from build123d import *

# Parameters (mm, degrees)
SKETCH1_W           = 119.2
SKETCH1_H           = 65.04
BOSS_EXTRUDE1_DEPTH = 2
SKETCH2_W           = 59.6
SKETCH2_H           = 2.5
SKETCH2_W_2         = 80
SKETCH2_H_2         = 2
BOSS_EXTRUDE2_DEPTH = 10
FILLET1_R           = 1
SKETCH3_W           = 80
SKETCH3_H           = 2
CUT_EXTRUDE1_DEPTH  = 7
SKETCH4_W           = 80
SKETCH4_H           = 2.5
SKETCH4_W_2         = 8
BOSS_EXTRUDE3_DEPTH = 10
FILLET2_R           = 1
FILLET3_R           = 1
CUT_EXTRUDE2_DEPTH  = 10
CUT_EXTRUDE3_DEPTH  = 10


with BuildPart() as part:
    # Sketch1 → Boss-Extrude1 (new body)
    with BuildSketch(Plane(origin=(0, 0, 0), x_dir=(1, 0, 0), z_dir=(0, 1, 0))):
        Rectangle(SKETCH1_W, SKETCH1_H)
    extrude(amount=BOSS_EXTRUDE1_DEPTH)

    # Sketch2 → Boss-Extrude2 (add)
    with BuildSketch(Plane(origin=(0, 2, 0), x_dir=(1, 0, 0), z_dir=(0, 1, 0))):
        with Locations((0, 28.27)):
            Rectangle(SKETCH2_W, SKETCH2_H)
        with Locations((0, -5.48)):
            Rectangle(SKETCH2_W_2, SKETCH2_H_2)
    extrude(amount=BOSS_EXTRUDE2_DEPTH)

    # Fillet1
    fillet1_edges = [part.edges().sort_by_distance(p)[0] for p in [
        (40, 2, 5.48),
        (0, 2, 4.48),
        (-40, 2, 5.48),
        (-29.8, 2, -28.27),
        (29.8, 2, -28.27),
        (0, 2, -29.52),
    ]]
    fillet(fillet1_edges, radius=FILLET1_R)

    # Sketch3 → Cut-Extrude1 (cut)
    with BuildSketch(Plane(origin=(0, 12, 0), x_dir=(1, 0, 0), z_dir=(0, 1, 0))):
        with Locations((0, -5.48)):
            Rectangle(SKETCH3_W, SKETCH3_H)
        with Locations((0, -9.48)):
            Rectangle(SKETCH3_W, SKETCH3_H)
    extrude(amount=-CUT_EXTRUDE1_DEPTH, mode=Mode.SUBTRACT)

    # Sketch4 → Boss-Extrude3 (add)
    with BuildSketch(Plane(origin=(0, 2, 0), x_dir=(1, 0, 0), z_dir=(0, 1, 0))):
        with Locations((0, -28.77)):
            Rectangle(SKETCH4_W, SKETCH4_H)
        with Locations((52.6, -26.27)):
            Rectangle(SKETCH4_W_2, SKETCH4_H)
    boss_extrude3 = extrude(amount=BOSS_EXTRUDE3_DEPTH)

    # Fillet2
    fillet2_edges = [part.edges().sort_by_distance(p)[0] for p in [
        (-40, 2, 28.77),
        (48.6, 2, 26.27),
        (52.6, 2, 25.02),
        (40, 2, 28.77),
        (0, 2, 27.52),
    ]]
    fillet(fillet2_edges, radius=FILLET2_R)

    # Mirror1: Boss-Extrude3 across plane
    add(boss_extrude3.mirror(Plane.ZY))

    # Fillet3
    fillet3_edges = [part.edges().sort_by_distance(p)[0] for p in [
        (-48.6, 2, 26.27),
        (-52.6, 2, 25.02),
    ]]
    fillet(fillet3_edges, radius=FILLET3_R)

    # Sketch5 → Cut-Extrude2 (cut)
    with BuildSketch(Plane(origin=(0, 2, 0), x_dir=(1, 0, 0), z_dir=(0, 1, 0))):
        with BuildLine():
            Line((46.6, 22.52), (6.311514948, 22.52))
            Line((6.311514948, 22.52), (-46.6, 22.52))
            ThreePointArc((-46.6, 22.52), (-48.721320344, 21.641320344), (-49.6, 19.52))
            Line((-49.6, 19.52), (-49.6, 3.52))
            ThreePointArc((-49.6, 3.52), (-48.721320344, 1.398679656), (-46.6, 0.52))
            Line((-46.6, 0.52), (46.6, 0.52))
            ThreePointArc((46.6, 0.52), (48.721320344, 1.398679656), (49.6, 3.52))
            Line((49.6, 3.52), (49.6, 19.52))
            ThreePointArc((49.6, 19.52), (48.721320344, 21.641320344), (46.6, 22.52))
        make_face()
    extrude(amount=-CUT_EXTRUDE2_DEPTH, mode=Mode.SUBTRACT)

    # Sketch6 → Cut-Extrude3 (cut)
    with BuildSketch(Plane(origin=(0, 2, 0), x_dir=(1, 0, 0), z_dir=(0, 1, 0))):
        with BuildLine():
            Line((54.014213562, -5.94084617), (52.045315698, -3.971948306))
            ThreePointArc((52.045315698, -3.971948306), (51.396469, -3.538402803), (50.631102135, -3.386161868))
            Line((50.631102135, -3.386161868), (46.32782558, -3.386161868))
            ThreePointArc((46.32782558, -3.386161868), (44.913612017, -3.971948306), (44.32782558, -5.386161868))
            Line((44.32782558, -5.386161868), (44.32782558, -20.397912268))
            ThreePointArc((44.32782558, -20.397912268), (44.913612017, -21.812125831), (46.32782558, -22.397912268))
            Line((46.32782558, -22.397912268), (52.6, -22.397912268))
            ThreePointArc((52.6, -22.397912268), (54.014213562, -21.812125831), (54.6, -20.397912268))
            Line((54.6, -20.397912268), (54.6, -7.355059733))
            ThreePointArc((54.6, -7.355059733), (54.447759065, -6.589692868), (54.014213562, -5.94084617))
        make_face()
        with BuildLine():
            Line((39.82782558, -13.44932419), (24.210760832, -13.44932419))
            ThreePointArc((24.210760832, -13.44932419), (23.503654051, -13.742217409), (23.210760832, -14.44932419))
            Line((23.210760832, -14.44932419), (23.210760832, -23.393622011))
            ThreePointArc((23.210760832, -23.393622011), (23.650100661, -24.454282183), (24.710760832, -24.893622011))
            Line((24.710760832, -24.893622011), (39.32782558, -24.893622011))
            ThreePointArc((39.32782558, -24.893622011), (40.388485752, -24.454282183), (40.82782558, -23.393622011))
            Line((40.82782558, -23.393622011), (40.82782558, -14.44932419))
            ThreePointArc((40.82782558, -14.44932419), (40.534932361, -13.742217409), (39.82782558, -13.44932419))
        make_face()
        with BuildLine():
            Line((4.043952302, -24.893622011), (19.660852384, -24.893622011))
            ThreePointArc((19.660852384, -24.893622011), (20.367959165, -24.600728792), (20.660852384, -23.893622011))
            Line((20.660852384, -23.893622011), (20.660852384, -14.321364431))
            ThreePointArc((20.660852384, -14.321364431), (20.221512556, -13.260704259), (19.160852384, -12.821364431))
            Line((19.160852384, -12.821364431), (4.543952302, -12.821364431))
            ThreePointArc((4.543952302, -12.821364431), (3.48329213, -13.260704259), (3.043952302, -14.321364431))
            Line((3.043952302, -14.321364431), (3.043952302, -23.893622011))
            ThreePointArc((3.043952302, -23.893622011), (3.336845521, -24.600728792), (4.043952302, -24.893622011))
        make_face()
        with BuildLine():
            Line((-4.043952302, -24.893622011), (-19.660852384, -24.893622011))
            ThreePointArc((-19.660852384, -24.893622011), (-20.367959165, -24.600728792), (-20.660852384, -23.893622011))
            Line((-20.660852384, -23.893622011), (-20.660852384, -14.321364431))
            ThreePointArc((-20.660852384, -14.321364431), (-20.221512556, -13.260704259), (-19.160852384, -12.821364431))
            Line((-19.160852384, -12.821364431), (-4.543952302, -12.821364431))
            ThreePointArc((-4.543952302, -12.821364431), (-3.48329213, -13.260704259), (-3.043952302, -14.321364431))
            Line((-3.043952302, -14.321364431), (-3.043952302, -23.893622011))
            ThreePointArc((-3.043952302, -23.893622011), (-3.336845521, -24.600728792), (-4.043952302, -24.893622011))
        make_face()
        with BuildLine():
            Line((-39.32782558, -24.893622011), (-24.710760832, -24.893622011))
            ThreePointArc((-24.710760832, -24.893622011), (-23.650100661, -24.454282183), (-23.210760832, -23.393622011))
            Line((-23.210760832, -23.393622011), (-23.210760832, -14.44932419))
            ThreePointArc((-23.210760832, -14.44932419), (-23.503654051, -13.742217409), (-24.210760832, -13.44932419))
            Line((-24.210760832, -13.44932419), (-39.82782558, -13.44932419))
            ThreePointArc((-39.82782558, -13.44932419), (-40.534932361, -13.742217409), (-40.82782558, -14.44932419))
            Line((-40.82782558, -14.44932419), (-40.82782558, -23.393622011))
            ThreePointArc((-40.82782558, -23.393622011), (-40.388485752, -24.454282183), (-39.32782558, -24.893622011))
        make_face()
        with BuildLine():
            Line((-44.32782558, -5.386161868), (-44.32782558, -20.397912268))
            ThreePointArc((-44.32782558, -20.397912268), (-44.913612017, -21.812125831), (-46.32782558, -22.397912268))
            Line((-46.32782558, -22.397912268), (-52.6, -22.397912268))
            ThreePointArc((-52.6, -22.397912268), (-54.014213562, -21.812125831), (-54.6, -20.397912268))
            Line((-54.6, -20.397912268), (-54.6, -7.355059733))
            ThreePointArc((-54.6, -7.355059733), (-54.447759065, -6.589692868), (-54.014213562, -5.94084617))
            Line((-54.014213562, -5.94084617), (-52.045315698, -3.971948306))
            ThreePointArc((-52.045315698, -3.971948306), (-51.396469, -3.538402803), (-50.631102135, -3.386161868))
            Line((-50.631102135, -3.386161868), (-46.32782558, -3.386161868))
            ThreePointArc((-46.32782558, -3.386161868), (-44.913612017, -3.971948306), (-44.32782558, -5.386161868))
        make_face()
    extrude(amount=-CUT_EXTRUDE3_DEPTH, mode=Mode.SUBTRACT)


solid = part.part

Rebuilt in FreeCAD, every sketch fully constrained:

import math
import FreeCAD as App
import Part
import Sketcher

V = App.Vector
Q = App.Units.Quantity


def edges_at(feature, points):
    """Names of the edges that pass closest to the given points."""
    edges = feature.Shape.Edges
    near = lambda p: min(range(len(edges)), key=lambda i: edges[i].distToShape(Part.Vertex(*p))[0])
    return sorted({f"Edge{near(p) + 1}" for p in points})


def add_polygon(sketch, points):
    """Adds a closed chain of lines whose ends are joined by coincident constraints."""
    first, n = sketch.GeometryCount, len(points)
    for a, b in zip(points, points[1:] + points[:1]):
        sketch.addGeometry(Part.LineSegment(App.Vector(*a, 0), App.Vector(*b, 0)), False)
    for i in range(n):
        sketch.addConstraint(Sketcher.Constraint("Coincident", first + i, 2, first + (i + 1) % n, 1))

doc = App.newDocument("Part")
params = doc.addObject("Spreadsheet::Sheet", "Params")
for row, (alias, value) in enumerate([
    ("sketch1_width", "119.2 mm"),
    ("sketch1_height", "65.04 mm"),
    ("pad1_length", "2 mm"),
    ("sketch2_width", "80 mm"),
    ("sketch2_height", "2 mm"),
    ("sketch2_width2", "59.6 mm"),
    ("sketch2_height2", "2.5 mm"),
    ("pad2_length", "10 mm"),
    ("fillet_radius", "1 mm"),
    ("sketch3_width", "80 mm"),
    ("sketch3_height", "2 mm"),
    ("pocket1_length", "7 mm"),
    ("sketch4_width", "80 mm"),
    ("sketch4_width2", "8 mm"),
    ("sketch4_height", "2.5 mm"),
    ("pad3_length", "10 mm"),
    ("fillet2_radius", "1 mm"),
    ("fillet3_radius", "1 mm"),
    ("sketch5_radius", "3 mm"),
    ("sketch5_height", "16 mm"),
    ("sketch5_width", "93.2 mm"),
    ("pocket2_length", "10 mm"),
    ("sketch6_radius", "2 mm"),
    ("sketch6_radius2", "1 mm"),
    ("sketch6_radius3", "1.5 mm"),
    ("pocket3_length", "10 mm"),
], start=1):
    params.set(f"A{row}", alias)
    params.set(f"B{row}", "=" + value)
    params.setAlias(f"B{row}", alias)

body = doc.addObject("PartDesign::Body", "Body")

# Sketch on XZ plane
sketch1 = body.newObject("Sketcher::SketchObject", "Sketch")
sketch1.AttachmentSupport = (doc.getObject("XZ_Plane"), [""])
sketch1.MapMode = "FlatFace"
add_polygon(sketch1, [(-59.6, -32.52), (-59.6, 32.52), (59.6, 32.52), (59.6, -32.52)])  # lines 0-3
sketch1.addConstraint([
    Sketcher.Constraint("Vertical", 0),
    Sketcher.Constraint("Horizontal", 1),
    Sketcher.Constraint("Vertical", 2),
    Sketcher.Constraint("Horizontal", 3),
    Sketcher.Constraint("Symmetric", 0, 2, 2, 2, -1, 1),
    Sketcher.Constraint("DistanceX", 1, 1, 1, 2, Q("119.2 mm")),
    Sketcher.Constraint("DistanceY", 0, 1, 0, 2, Q("65.04 mm")),
])
sketch1.setExpression("Constraints[9]", "Params.sketch1_width")
sketch1.setExpression("Constraints[10]", "Params.sketch1_height")
pad1 = body.newObject("PartDesign::Pad", "Pad")
pad1.Profile = sketch1
pad1.setExpression("Length", "Params.pad1_length")
pad1.Reversed = True

# Sketch on XZ plane
sketch2 = body.newObject("Sketcher::SketchObject", "Sketch001")
sketch2.AttachmentSupport = (doc.getObject("XZ_Plane"), [""])
sketch2.MapMode = "FlatFace"
sketch2.AttachmentOffset = App.Placement(V(0, 0, -2), App.Rotation())
add_polygon(sketch2, [(-29.8, -29.52), (-29.8, -27.02), (29.8, -27.02), (29.8, -29.52)])  # lines 0-3
add_polygon(sketch2, [(-40, 4.48), (-40, 6.48), (40, 6.48), (40, 4.48)])  # lines 4-7
sketch2.addConstraint([
    Sketcher.Constraint("Vertical", 0),
    Sketcher.Constraint("Horizontal", 1),
    Sketcher.Constraint("Vertical", 2),
    Sketcher.Constraint("Horizontal", 3),
    Sketcher.Constraint("Vertical", 4),
    Sketcher.Constraint("Horizontal", 5),
    Sketcher.Constraint("Vertical", 6),
    Sketcher.Constraint("Horizontal", 7),
    Sketcher.Constraint("DistanceX", 5, 1, 5, 2, Q("80 mm")),
    Sketcher.Constraint("DistanceY", 4, 1, 4, 2, Q("2 mm")),
    Sketcher.Constraint("DistanceX", 1, 1, 1, 2, Q("59.6 mm")),
    Sketcher.Constraint("DistanceY", 0, 1, 0, 2, Q("2.5 mm")),
    Sketcher.Constraint("DistanceX", 4, 2, -1, 1, Q("40 mm")),
    Sketcher.Constraint("DistanceY", 3, 2, 4, 2, Q("36 mm")),
    Sketcher.Constraint("DistanceX", 0, 2, -1, 1, Q("29.8 mm")),
    Sketcher.Constraint("DistanceY", 0, 2, -1, 1, Q("27.02 mm")),
])
sketch2.setExpression("Constraints[16]", "Params.sketch2_width")
sketch2.setExpression("Constraints[17]", "Params.sketch2_height")
sketch2.setExpression("Constraints[18]", "Params.sketch2_width2")
sketch2.setExpression("Constraints[19]", "Params.sketch2_height2")
pad2 = body.newObject("PartDesign::Pad", "Pad001")
pad2.Profile = sketch2
pad2.setExpression("Length", "Params.pad2_length")
pad2.Reversed = True
doc.recompute()

fillet = body.newObject("PartDesign::Fillet", "Fillet")
fillet.Base = (pad2, edges_at(pad2, [
    (40, 2, 5.48),
    (0, 2, 4.48),
    (-40, 2, 5.48),
    (-29.8, 2, -28.27),
    (29.8, 2, -28.27),
    (0, 2, -29.52),
]))
fillet.setExpression("Radius", "Params.fillet_radius")

# Sketch on XZ plane
sketch3 = body.newObject("Sketcher::SketchObject", "Sketch002")
sketch3.AttachmentSupport = (doc.getObject("XZ_Plane"), [""])
sketch3.MapMode = "FlatFace"
sketch3.AttachmentOffset = App.Placement(V(0, 0, -12), App.Rotation())
add_polygon(sketch3, [(-40, 4.48), (-40, 6.48), (40, 6.48), (40, 4.48)])  # lines 0-3
add_polygon(sketch3, [(-40, 8.48), (-40, 10.48), (40, 10.48), (40, 8.48)])  # lines 4-7
sketch3.addConstraint([
    Sketcher.Constraint("Vertical", 0),
    Sketcher.Constraint("Horizontal", 1),
    Sketcher.Constraint("Vertical", 2),
    Sketcher.Constraint("Horizontal", 3),
    Sketcher.Constraint("Vertical", 4),
    Sketcher.Constraint("Horizontal", 5),
    Sketcher.Constraint("Vertical", 6),
    Sketcher.Constraint("Horizontal", 7),
    Sketcher.Constraint("Vertical", 3, 2, 4, 2),
    Sketcher.Constraint("Vertical", 2, 2, 5, 2),
    Sketcher.Constraint("Equal", 2, 4),
    Sketcher.Constraint("DistanceX", 1, 1, 1, 2, Q("80 mm")),
    Sketcher.Constraint("DistanceY", 0, 1, 0, 2, Q("2 mm")),
    Sketcher.Constraint("DistanceX", 0, 2, -1, 1, Q("40 mm")),
    Sketcher.Constraint("DistanceY", 0, 2, 4, 2, Q("4 mm")),
    Sketcher.Constraint("DistanceY", -1, 1, 0, 2, Q("6.48 mm")),
])
sketch3.setExpression("Constraints[19]", "Params.sketch3_width")
sketch3.setExpression("Constraints[20]", "Params.sketch3_height")
pocket1 = body.newObject("PartDesign::Pocket", "Pocket")
pocket1.Profile = sketch3
pocket1.setExpression("Length", "Params.pocket1_length")
pocket1.Reversed = True

# Sketch on XZ plane
sketch4 = body.newObject("Sketcher::SketchObject", "Sketch003")
sketch4.AttachmentSupport = (doc.getObject("XZ_Plane"), [""])
sketch4.MapMode = "FlatFace"
sketch4.AttachmentOffset = App.Placement(V(0, 0, -2), App.Rotation())
add_polygon(sketch4, [(-40, 27.52), (-40, 30.02), (40, 30.02), (40, 27.52)])  # lines 0-3
add_polygon(sketch4, [(48.6, 25.02), (48.6, 27.52), (56.6, 27.52), (56.6, 25.02)])  # lines 4-7
sketch4.addConstraint([
    Sketcher.Constraint("Vertical", 0),
    Sketcher.Constraint("Horizontal", 1),
    Sketcher.Constraint("Vertical", 2),
    Sketcher.Constraint("Horizontal", 3),
    Sketcher.Constraint("Vertical", 4),
    Sketcher.Constraint("Horizontal", 5),
    Sketcher.Constraint("Vertical", 6),
    Sketcher.Constraint("Horizontal", 7),
    Sketcher.Constraint("Horizontal", 3, 2, 4, 2),
    Sketcher.Constraint("Equal", 2, 4),
    Sketcher.Constraint("DistanceX", 1, 1, 1, 2, Q("80 mm")),
    Sketcher.Constraint("DistanceX", 5, 1, 5, 2, Q("8 mm")),
    Sketcher.Constraint("DistanceY", 0, 1, 0, 2, Q("2.5 mm")),
    Sketcher.Constraint("DistanceX", 0, 2, -1, 1, Q("40 mm")),
    Sketcher.Constraint("DistanceX", -1, 1, 4, 2, Q("48.6 mm")),
    Sketcher.Constraint("DistanceY", -1, 1, 0, 2, Q("30.02 mm")),
])
sketch4.setExpression("Constraints[18]", "Params.sketch4_width")
sketch4.setExpression("Constraints[19]", "Params.sketch4_width2")
sketch4.setExpression("Constraints[20]", "Params.sketch4_height")
pad3 = body.newObject("PartDesign::Pad", "Pad002")
pad3.Profile = sketch4
pad3.setExpression("Length", "Params.pad3_length")
pad3.Reversed = True
doc.recompute()

fillet2 = body.newObject("PartDesign::Fillet", "Fillet001")
fillet2.Base = (pad3, edges_at(pad3, [
    (-40, 2, 28.77),
    (48.6, 2, 26.27),
    (52.6, 2, 25.02),
    (40, 2, 28.77),
    (0, 2, 27.52),
]))
fillet2.setExpression("Radius", "Params.fillet2_radius")
doc.recompute()

mirrored = body.newObject("PartDesign::Mirrored", "Mirrored")
mirrored.Originals = [pad3]
mirrored.MirrorPlane = (doc.getObject("YZ_Plane"), [""])
body.Tip = mirrored
doc.recompute()

fillet3 = body.newObject("PartDesign::Fillet", "Fillet002")
fillet3.Base = (mirrored, edges_at(mirrored, [(-48.6, 2, 26.27), (-52.6, 2, 25.02)]))
fillet3.setExpression("Radius", "Params.fillet3_radius")

# Sketch on XZ plane
sketch5 = body.newObject("Sketcher::SketchObject", "Sketch004")
sketch5.AttachmentSupport = (doc.getObject("XZ_Plane"), [""])
sketch5.MapMode = "FlatFace"
sketch5.AttachmentOffset = App.Placement(V(0, 0, -2), App.Rotation())
sketch5.addGeometry([
    Part.LineSegment(V(46.6, -22.52, 0), V(-46.6, -22.52, 0)),  # 0
    Part.ArcOfCircle(Part.Circle(V(-46.6, -19.52, 0), V(0, 0, 1), 3), math.radians(180), math.radians(270)),  # 1
    Part.LineSegment(V(-49.6, -19.52, 0), V(-49.6, -3.52, 0)),  # 2
    Part.ArcOfCircle(Part.Circle(V(-46.6, -3.52, 0), V(0, 0, 1), 3), math.radians(90), math.radians(180)),  # 3
    Part.LineSegment(V(-46.6, -0.52, 0), V(46.6, -0.52, 0)),  # 4
    Part.ArcOfCircle(Part.Circle(V(46.6, -3.52, 0), V(0, 0, 1), 3), math.radians(0), math.radians(90)),  # 5
    Part.LineSegment(V(49.6, -3.52, 0), V(49.6, -19.52, 0)),  # 6
    Part.ArcOfCircle(Part.Circle(V(46.6, -19.52, 0), V(0, 0, 1), 3), math.radians(-90), math.radians(0)),  # 7
], False)
sketch5.addConstraint([
    Sketcher.Constraint("Tangent", 0, 2, 1, 2),
    Sketcher.Constraint("Tangent", 1, 1, 2, 1),
    Sketcher.Constraint("Tangent", 2, 2, 3, 2),
    Sketcher.Constraint("Tangent", 3, 1, 4, 1),
    Sketcher.Constraint("Tangent", 4, 2, 5, 2),
    Sketcher.Constraint("Tangent", 5, 1, 6, 1),
    Sketcher.Constraint("Tangent", 6, 2, 7, 2),
    Sketcher.Constraint("Tangent", 7, 1, 0, 1),
    Sketcher.Constraint("Horizontal", 0),
    Sketcher.Constraint("Vertical", 2),
    Sketcher.Constraint("Horizontal", 4),
    Sketcher.Constraint("Vertical", 6),
    Sketcher.Constraint("Equal", 1, 3),
    Sketcher.Constraint("Equal", 3, 5),
    Sketcher.Constraint("Equal", 5, 7),
    Sketcher.Constraint("Radius", 1, Q("3 mm")),
    Sketcher.Constraint("DistanceY", 2, 1, 2, 2, Q("16 mm")),
    Sketcher.Constraint("DistanceX", 0, 2, 0, 1, Q("93.2 mm")),
    Sketcher.Constraint("DistanceX", 1, 3, -1, 1, Q("46.6 mm")),
    Sketcher.Constraint("DistanceY", 1, 3, -1, 1, Q("19.52 mm")),
])
sketch5.setExpression("Constraints[15]", "Params.sketch5_radius")
sketch5.setExpression("Constraints[16]", "Params.sketch5_height")
sketch5.setExpression("Constraints[17]", "Params.sketch5_width")
pocket2 = body.newObject("PartDesign::Pocket", "Pocket001")
pocket2.Profile = sketch5
pocket2.setExpression("Length", "Params.pocket2_length")
pocket2.Reversed = True

# Sketch on XZ plane
sketch6 = body.newObject("Sketcher::SketchObject", "Sketch005")
sketch6.AttachmentSupport = (doc.getObject("XZ_Plane"), [""])
sketch6.MapMode = "FlatFace"
sketch6.AttachmentOffset = App.Placement(V(0, 0, -2), App.Rotation())
sketch6.addGeometry([
    Part.LineSegment(V(54.014214, 5.940846, 0), V(52.045316, 3.971948, 0)),  # 0
    Part.ArcOfCircle(Part.Circle(V(50.631102, 5.386162, 0), V(0, 0, 1), 2), math.radians(-90), math.radians(-45)),  # 1
    Part.LineSegment(V(50.631102, 3.386162, 0), V(46.327826, 3.386162, 0)),  # 2
    Part.ArcOfCircle(Part.Circle(V(46.327826, 5.386162, 0), V(0, 0, 1), 2), math.radians(180), math.radians(270)),  # 3
    Part.LineSegment(V(44.327826, 5.386162, 0), V(44.327826, 20.397912, 0)),  # 4
    Part.ArcOfCircle(Part.Circle(V(46.327826, 20.397912, 0), V(0, 0, 1), 2), math.radians(90), math.radians(180)),  # 5
    Part.LineSegment(V(46.327826, 22.397912, 0), V(52.6, 22.397912, 0)),  # 6
    Part.ArcOfCircle(Part.Circle(V(52.6, 20.397912, 0), V(0, 0, 1), 2), math.radians(0), math.radians(90)),  # 7
    Part.LineSegment(V(54.6, 20.397912, 0), V(54.6, 7.35506, 0)),  # 8
    Part.ArcOfCircle(Part.Circle(V(52.6, 7.35506, 0), V(0, 0, 1), 2), math.radians(-45), math.radians(0)),  # 9
    Part.LineSegment(V(39.827826, 13.449324, 0), V(24.210761, 13.449324, 0)),  # 10
    Part.ArcOfCircle(Part.Circle(V(24.210761, 14.449324, 0), V(0, 0, 1), 1), math.radians(-180), math.radians(-90)),  # 11
    Part.LineSegment(V(23.210761, 14.449324, 0), V(23.210761, 23.393622, 0)),  # 12
    Part.ArcOfCircle(Part.Circle(V(24.710761, 23.393622, 0), V(0, 0, 1), 1.5), math.radians(90), math.radians(180)),  # 13
    Part.LineSegment(V(24.710761, 24.893622, 0), V(39.327826, 24.893622, 0)),  # 14
    Part.ArcOfCircle(Part.Circle(V(39.327826, 23.393622, 0), V(0, 0, 1), 1.5), math.radians(0), math.radians(90)),  # 15
    Part.LineSegment(V(40.827826, 23.393622, 0), V(40.827826, 14.449324, 0)),  # 16
    Part.ArcOfCircle(Part.Circle(V(39.827826, 14.449324, 0), V(0, 0, 1), 1), math.radians(-90), math.radians(0)),  # 17
    Part.LineSegment(V(4.043952, 24.893622, 0), V(19.660852, 24.893622, 0)),  # 18
    Part.ArcOfCircle(Part.Circle(V(19.660852, 23.893622, 0), V(0, 0, 1), 1), math.radians(0), math.radians(90)),  # 19
    Part.LineSegment(V(20.660852, 23.893622, 0), V(20.660852, 14.321364, 0)),  # 20
    Part.ArcOfCircle(Part.Circle(V(19.160852, 14.321364, 0), V(0, 0, 1), 1.5), math.radians(-90), math.radians(0)),  # 21
    Part.LineSegment(V(19.160852, 12.821364, 0), V(4.543952, 12.821364, 0)),  # 22
    Part.ArcOfCircle(Part.Circle(V(4.543952, 14.321364, 0), V(0, 0, 1), 1.5), math.radians(180), math.radians(270)),  # 23
    Part.LineSegment(V(3.043952, 14.321364, 0), V(3.043952, 23.893622, 0)),  # 24
    Part.ArcOfCircle(Part.Circle(V(4.043952, 23.893622, 0), V(0, 0, 1), 1), math.radians(90), math.radians(180)),  # 25
    Part.LineSegment(V(-19.660852, 24.893622, 0), V(-4.043952, 24.893622, 0)),  # 26
    Part.ArcOfCircle(Part.Circle(V(-4.043952, 23.893622, 0), V(0, 0, 1), 1), math.radians(0), math.radians(90)),  # 27
    Part.LineSegment(V(-3.043952, 23.893622, 0), V(-3.043952, 14.321364, 0)),  # 28
    Part.ArcOfCircle(Part.Circle(V(-4.543952, 14.321364, 0), V(0, 0, 1), 1.5), math.radians(-90), math.radians(0)),  # 29
    Part.LineSegment(V(-4.543952, 12.821364, 0), V(-19.160852, 12.821364, 0)),  # 30
    Part.ArcOfCircle(Part.Circle(V(-19.160852, 14.321364, 0), V(0, 0, 1), 1.5), math.radians(180), math.radians(270)),  # 31
    Part.LineSegment(V(-20.660852, 14.321364, 0), V(-20.660852, 23.893622, 0)),  # 32
    Part.ArcOfCircle(Part.Circle(V(-19.660852, 23.893622, 0), V(0, 0, 1), 1), math.radians(90), math.radians(180)),  # 33
    Part.LineSegment(V(-39.327826, 24.893622, 0), V(-24.710761, 24.893622, 0)),  # 34
    Part.ArcOfCircle(Part.Circle(V(-24.710761, 23.393622, 0), V(0, 0, 1), 1.5), math.radians(0), math.radians(90)),  # 35
    Part.LineSegment(V(-23.210761, 23.393622, 0), V(-23.210761, 14.449324, 0)),  # 36
    Part.ArcOfCircle(Part.Circle(V(-24.210761, 14.449324, 0), V(0, 0, 1), 1), math.radians(-90), math.radians(0)),  # 37
    Part.LineSegment(V(-24.210761, 13.449324, 0), V(-39.827826, 13.449324, 0)),  # 38
    Part.ArcOfCircle(Part.Circle(V(-39.827826, 14.449324, 0), V(0, 0, 1), 1), math.radians(-180), math.radians(-90)),  # 39
    Part.LineSegment(V(-40.827826, 14.449324, 0), V(-40.827826, 23.393622, 0)),  # 40
    Part.ArcOfCircle(Part.Circle(V(-39.327826, 23.393622, 0), V(0, 0, 1), 1.5), math.radians(90), math.radians(180)),  # 41
    Part.LineSegment(V(-44.327826, 20.397912, 0), V(-44.327826, 5.386162, 0)),  # 42
    Part.ArcOfCircle(Part.Circle(V(-46.327826, 5.386162, 0), V(0, 0, 1), 2), math.radians(-90), math.radians(0)),  # 43
    Part.LineSegment(V(-46.327826, 3.386162, 0), V(-50.631102, 3.386162, 0)),  # 44
    Part.ArcOfCircle(Part.Circle(V(-50.631102, 5.386162, 0), V(0, 0, 1), 2), math.radians(-135), math.radians(-90)),  # 45
    Part.LineSegment(V(-52.045316, 3.971948, 0), V(-54.014214, 5.940846, 0)),  # 46
    Part.ArcOfCircle(Part.Circle(V(-52.6, 7.35506, 0), V(0, 0, 1), 2), math.radians(180), math.radians(225)),  # 47
    Part.LineSegment(V(-54.6, 7.35506, 0), V(-54.6, 20.397912, 0)),  # 48
    Part.ArcOfCircle(Part.Circle(V(-52.6, 20.397912, 0), V(0, 0, 1), 2), math.radians(90), math.radians(180)),  # 49
    Part.LineSegment(V(-52.6, 22.397912, 0), V(-46.327826, 22.397912, 0)),  # 50
    Part.ArcOfCircle(Part.Circle(V(-46.327826, 20.397912, 0), V(0, 0, 1), 2), math.radians(0), math.radians(90)),  # 51
], False)
sketch6.addConstraint([
    Sketcher.Constraint("Tangent", 0, 2, 1, 2),
    Sketcher.Constraint("Tangent", 1, 1, 2, 1),
    Sketcher.Constraint("Tangent", 2, 2, 3, 2),
    Sketcher.Constraint("Tangent", 3, 1, 4, 1),
    Sketcher.Constraint("Tangent", 4, 2, 5, 2),
    Sketcher.Constraint("Tangent", 5, 1, 6, 1),
    Sketcher.Constraint("Tangent", 6, 2, 7, 2),
    Sketcher.Constraint("Tangent", 7, 1, 8, 1),
    Sketcher.Constraint("Tangent", 8, 2, 9, 2),
    Sketcher.Constraint("Tangent", 9, 1, 0, 1),
    Sketcher.Constraint("Tangent", 10, 2, 11, 2),
    Sketcher.Constraint("Tangent", 11, 1, 12, 1),
    Sketcher.Constraint("Tangent", 12, 2, 13, 2),
    Sketcher.Constraint("Tangent", 13, 1, 14, 1),
    Sketcher.Constraint("Tangent", 14, 2, 15, 2),
    Sketcher.Constraint("Tangent", 15, 1, 16, 1),
    Sketcher.Constraint("Tangent", 16, 2, 17, 2),
    Sketcher.Constraint("Tangent", 17, 1, 10, 1),
    Sketcher.Constraint("Tangent", 18, 2, 19, 2),
    Sketcher.Constraint("Tangent", 19, 1, 20, 1),
    Sketcher.Constraint("Tangent", 20, 2, 21, 2),
    Sketcher.Constraint("Tangent", 21, 1, 22, 1),
    Sketcher.Constraint("Tangent", 22, 2, 23, 2),
    Sketcher.Constraint("Tangent", 23, 1, 24, 1),
    Sketcher.Constraint("Tangent", 24, 2, 25, 2),
    Sketcher.Constraint("Tangent", 25, 1, 18, 1),
    Sketcher.Constraint("Tangent", 26, 2, 27, 2),
    Sketcher.Constraint("Tangent", 27, 1, 28, 1),
    Sketcher.Constraint("Tangent", 28, 2, 29, 2),
    Sketcher.Constraint("Tangent", 29, 1, 30, 1),
    Sketcher.Constraint("Tangent", 30, 2, 31, 2),
    Sketcher.Constraint("Tangent", 31, 1, 32, 1),
    Sketcher.Constraint("Tangent", 32, 2, 33, 2),
    Sketcher.Constraint("Tangent", 33, 1, 26, 1),
    Sketcher.Constraint("Tangent", 34, 2, 35, 2),
    Sketcher.Constraint("Tangent", 35, 1, 36, 1),
    Sketcher.Constraint("Tangent", 36, 2, 37, 2),
    Sketcher.Constraint("Tangent", 37, 1, 38, 1),
    Sketcher.Constraint("Tangent", 38, 2, 39, 2),
    Sketcher.Constraint("Tangent", 39, 1, 40, 1),
    Sketcher.Constraint("Tangent", 40, 2, 41, 2),
    Sketcher.Constraint("Tangent", 41, 1, 34, 1),
    Sketcher.Constraint("Tangent", 42, 2, 43, 2),
    Sketcher.Constraint("Tangent", 43, 1, 44, 1),
    Sketcher.Constraint("Tangent", 44, 2, 45, 2),
    Sketcher.Constraint("Tangent", 45, 1, 46, 1),
    Sketcher.Constraint("Tangent", 46, 2, 47, 2),
    Sketcher.Constraint("Tangent", 47, 1, 48, 1),
    Sketcher.Constraint("Tangent", 48, 2, 49, 2),
    Sketcher.Constraint("Tangent", 49, 1, 50, 1),
    Sketcher.Constraint("Tangent", 50, 2, 51, 2),
    Sketcher.Constraint("Tangent", 51, 1, 42, 1),
    Sketcher.Constraint("Horizontal", 2),
    Sketcher.Constraint("Vertical", 4),
    Sketcher.Constraint("Horizontal", 6),
    Sketcher.Constraint("Vertical", 8),
    Sketcher.Constraint("Horizontal", 10),
    Sketcher.Constraint("Vertical", 12),
    Sketcher.Constraint("Horizontal", 14),
    Sketcher.Constraint("Vertical", 16),
    Sketcher.Constraint("Horizontal", 18),
    Sketcher.Constraint("Vertical", 20),
    Sketcher.Constraint("Horizontal", 22),
    Sketcher.Constraint("Vertical", 24),
    Sketcher.Constraint("Horizontal", 26),
    Sketcher.Constraint("Vertical", 28),
    Sketcher.Constraint("Horizontal", 30),
    Sketcher.Constraint("Vertical", 32),
    Sketcher.Constraint("Horizontal", 34),
    Sketcher.Constraint("Vertical", 36),
    Sketcher.Constraint("Horizontal", 38),
    Sketcher.Constraint("Vertical", 40),
    Sketcher.Constraint("Vertical", 42),
    Sketcher.Constraint("Horizontal", 44),
    Sketcher.Constraint("Vertical", 48),
    Sketcher.Constraint("Horizontal", 50),
    Sketcher.Constraint("Equal", 1, 3),
    Sketcher.Constraint("Equal", 3, 5),
    Sketcher.Constraint("Equal", 5, 7),
    Sketcher.Constraint("Equal", 7, 9),
    Sketcher.Constraint("Equal", 13, 15),
    Sketcher.Constraint("Equal", 11, 17),
    Sketcher.Constraint("Equal", 17, 19),
    Sketcher.Constraint("Equal", 15, 21),
    Sketcher.Constraint("Equal", 21, 23),
    Sketcher.Constraint("Equal", 19, 25),
    Sketcher.Constraint("Equal", 25, 27),
    Sketcher.Constraint("Equal", 23, 29),
    Sketcher.Constraint("Equal", 29, 31),
    Sketcher.Constraint("Equal", 27, 33),
    Sketcher.Constraint("Equal", 31, 35),
    Sketcher.Constraint("Equal", 33, 37),
    Sketcher.Constraint("Equal", 37, 39),
    Sketcher.Constraint("Equal", 35, 41),
    Sketcher.Constraint("Equal", 9, 43),
    Sketcher.Constraint("Equal", 43, 45),
    Sketcher.Constraint("Equal", 45, 47),
    Sketcher.Constraint("Equal", 47, 49),
    Sketcher.Constraint("Equal", 49, 51),
    Sketcher.Constraint("Symmetric", 25, 3, 27, 3, -2),
    Sketcher.Constraint("Symmetric", 21, 3, 31, 3, -2),
    Sketcher.Constraint("Symmetric", 13, 3, 35, 3, -2),
    Sketcher.Constraint("Symmetric", 17, 3, 39, 3, -2),
    Sketcher.Constraint("Symmetric", 3, 3, 43, 3, -2),
    Sketcher.Constraint("Symmetric", 9, 3, 47, 3, -2),
    Sketcher.Constraint("Perpendicular", 0, 46),
    Sketcher.Constraint("Horizontal", 7, 3, 49, 3),
    Sketcher.Constraint("Horizontal", 14, 2, 18, 2),
    Sketcher.Constraint("Horizontal", 0, 2, 45, 1),
    Sketcher.Constraint("Radius", 1, Q("2 mm")),
    Sketcher.Constraint("Radius", 11, Q("1 mm")),
    Sketcher.Constraint("Radius", 13, Q("1.5 mm")),
    Sketcher.Constraint("DistanceX", -1, 1, 7, 3, Q("52.6 mm")),
    Sketcher.Constraint("DistanceX", 18, 1, 18, 2, Q("15.6169 mm")),
    Sketcher.Constraint("DistanceY", 4, 1, 4, 2, Q("15.01175 mm")),
    Sketcher.Constraint("DistanceX", 2, 2, 2, 1, Q("4.303277 mm")),
    Sketcher.Constraint("DistanceX", 6, 1, 6, 2, Q("6.272174 mm")),
    Sketcher.Constraint("DistanceX", 10, 2, 10, 1, Q("15.617065 mm")),
    Sketcher.Constraint("DistanceY", 12, 1, 12, 2, Q("8.944298 mm")),
    Sketcher.Constraint("DistanceY", 20, 2, 20, 1, Q("9.572258 mm")),
    Sketcher.Constraint("DistanceY", -1, 1, 1, 3, Q("5.386162 mm")),
    Sketcher.Constraint("DistanceX", -1, 1, 11, 3, Q("24.210761 mm")),
    Sketcher.Constraint("DistanceY", -1, 1, 11, 3, Q("14.449324 mm")),
    Sketcher.Constraint("DistanceX", -1, 1, 19, 3, Q("19.660852 mm")),
])
sketch6.setExpression("Constraints[109]", "Params.sketch6_radius")
sketch6.setExpression("Constraints[110]", "Params.sketch6_radius2")
sketch6.setExpression("Constraints[111]", "Params.sketch6_radius3")
pocket3 = body.newObject("PartDesign::Pocket", "Pocket002")
pocket3.Profile = sketch6
pocket3.setExpression("Length", "Params.pocket3_length")
pocket3.Reversed = True

doc.recompute()
